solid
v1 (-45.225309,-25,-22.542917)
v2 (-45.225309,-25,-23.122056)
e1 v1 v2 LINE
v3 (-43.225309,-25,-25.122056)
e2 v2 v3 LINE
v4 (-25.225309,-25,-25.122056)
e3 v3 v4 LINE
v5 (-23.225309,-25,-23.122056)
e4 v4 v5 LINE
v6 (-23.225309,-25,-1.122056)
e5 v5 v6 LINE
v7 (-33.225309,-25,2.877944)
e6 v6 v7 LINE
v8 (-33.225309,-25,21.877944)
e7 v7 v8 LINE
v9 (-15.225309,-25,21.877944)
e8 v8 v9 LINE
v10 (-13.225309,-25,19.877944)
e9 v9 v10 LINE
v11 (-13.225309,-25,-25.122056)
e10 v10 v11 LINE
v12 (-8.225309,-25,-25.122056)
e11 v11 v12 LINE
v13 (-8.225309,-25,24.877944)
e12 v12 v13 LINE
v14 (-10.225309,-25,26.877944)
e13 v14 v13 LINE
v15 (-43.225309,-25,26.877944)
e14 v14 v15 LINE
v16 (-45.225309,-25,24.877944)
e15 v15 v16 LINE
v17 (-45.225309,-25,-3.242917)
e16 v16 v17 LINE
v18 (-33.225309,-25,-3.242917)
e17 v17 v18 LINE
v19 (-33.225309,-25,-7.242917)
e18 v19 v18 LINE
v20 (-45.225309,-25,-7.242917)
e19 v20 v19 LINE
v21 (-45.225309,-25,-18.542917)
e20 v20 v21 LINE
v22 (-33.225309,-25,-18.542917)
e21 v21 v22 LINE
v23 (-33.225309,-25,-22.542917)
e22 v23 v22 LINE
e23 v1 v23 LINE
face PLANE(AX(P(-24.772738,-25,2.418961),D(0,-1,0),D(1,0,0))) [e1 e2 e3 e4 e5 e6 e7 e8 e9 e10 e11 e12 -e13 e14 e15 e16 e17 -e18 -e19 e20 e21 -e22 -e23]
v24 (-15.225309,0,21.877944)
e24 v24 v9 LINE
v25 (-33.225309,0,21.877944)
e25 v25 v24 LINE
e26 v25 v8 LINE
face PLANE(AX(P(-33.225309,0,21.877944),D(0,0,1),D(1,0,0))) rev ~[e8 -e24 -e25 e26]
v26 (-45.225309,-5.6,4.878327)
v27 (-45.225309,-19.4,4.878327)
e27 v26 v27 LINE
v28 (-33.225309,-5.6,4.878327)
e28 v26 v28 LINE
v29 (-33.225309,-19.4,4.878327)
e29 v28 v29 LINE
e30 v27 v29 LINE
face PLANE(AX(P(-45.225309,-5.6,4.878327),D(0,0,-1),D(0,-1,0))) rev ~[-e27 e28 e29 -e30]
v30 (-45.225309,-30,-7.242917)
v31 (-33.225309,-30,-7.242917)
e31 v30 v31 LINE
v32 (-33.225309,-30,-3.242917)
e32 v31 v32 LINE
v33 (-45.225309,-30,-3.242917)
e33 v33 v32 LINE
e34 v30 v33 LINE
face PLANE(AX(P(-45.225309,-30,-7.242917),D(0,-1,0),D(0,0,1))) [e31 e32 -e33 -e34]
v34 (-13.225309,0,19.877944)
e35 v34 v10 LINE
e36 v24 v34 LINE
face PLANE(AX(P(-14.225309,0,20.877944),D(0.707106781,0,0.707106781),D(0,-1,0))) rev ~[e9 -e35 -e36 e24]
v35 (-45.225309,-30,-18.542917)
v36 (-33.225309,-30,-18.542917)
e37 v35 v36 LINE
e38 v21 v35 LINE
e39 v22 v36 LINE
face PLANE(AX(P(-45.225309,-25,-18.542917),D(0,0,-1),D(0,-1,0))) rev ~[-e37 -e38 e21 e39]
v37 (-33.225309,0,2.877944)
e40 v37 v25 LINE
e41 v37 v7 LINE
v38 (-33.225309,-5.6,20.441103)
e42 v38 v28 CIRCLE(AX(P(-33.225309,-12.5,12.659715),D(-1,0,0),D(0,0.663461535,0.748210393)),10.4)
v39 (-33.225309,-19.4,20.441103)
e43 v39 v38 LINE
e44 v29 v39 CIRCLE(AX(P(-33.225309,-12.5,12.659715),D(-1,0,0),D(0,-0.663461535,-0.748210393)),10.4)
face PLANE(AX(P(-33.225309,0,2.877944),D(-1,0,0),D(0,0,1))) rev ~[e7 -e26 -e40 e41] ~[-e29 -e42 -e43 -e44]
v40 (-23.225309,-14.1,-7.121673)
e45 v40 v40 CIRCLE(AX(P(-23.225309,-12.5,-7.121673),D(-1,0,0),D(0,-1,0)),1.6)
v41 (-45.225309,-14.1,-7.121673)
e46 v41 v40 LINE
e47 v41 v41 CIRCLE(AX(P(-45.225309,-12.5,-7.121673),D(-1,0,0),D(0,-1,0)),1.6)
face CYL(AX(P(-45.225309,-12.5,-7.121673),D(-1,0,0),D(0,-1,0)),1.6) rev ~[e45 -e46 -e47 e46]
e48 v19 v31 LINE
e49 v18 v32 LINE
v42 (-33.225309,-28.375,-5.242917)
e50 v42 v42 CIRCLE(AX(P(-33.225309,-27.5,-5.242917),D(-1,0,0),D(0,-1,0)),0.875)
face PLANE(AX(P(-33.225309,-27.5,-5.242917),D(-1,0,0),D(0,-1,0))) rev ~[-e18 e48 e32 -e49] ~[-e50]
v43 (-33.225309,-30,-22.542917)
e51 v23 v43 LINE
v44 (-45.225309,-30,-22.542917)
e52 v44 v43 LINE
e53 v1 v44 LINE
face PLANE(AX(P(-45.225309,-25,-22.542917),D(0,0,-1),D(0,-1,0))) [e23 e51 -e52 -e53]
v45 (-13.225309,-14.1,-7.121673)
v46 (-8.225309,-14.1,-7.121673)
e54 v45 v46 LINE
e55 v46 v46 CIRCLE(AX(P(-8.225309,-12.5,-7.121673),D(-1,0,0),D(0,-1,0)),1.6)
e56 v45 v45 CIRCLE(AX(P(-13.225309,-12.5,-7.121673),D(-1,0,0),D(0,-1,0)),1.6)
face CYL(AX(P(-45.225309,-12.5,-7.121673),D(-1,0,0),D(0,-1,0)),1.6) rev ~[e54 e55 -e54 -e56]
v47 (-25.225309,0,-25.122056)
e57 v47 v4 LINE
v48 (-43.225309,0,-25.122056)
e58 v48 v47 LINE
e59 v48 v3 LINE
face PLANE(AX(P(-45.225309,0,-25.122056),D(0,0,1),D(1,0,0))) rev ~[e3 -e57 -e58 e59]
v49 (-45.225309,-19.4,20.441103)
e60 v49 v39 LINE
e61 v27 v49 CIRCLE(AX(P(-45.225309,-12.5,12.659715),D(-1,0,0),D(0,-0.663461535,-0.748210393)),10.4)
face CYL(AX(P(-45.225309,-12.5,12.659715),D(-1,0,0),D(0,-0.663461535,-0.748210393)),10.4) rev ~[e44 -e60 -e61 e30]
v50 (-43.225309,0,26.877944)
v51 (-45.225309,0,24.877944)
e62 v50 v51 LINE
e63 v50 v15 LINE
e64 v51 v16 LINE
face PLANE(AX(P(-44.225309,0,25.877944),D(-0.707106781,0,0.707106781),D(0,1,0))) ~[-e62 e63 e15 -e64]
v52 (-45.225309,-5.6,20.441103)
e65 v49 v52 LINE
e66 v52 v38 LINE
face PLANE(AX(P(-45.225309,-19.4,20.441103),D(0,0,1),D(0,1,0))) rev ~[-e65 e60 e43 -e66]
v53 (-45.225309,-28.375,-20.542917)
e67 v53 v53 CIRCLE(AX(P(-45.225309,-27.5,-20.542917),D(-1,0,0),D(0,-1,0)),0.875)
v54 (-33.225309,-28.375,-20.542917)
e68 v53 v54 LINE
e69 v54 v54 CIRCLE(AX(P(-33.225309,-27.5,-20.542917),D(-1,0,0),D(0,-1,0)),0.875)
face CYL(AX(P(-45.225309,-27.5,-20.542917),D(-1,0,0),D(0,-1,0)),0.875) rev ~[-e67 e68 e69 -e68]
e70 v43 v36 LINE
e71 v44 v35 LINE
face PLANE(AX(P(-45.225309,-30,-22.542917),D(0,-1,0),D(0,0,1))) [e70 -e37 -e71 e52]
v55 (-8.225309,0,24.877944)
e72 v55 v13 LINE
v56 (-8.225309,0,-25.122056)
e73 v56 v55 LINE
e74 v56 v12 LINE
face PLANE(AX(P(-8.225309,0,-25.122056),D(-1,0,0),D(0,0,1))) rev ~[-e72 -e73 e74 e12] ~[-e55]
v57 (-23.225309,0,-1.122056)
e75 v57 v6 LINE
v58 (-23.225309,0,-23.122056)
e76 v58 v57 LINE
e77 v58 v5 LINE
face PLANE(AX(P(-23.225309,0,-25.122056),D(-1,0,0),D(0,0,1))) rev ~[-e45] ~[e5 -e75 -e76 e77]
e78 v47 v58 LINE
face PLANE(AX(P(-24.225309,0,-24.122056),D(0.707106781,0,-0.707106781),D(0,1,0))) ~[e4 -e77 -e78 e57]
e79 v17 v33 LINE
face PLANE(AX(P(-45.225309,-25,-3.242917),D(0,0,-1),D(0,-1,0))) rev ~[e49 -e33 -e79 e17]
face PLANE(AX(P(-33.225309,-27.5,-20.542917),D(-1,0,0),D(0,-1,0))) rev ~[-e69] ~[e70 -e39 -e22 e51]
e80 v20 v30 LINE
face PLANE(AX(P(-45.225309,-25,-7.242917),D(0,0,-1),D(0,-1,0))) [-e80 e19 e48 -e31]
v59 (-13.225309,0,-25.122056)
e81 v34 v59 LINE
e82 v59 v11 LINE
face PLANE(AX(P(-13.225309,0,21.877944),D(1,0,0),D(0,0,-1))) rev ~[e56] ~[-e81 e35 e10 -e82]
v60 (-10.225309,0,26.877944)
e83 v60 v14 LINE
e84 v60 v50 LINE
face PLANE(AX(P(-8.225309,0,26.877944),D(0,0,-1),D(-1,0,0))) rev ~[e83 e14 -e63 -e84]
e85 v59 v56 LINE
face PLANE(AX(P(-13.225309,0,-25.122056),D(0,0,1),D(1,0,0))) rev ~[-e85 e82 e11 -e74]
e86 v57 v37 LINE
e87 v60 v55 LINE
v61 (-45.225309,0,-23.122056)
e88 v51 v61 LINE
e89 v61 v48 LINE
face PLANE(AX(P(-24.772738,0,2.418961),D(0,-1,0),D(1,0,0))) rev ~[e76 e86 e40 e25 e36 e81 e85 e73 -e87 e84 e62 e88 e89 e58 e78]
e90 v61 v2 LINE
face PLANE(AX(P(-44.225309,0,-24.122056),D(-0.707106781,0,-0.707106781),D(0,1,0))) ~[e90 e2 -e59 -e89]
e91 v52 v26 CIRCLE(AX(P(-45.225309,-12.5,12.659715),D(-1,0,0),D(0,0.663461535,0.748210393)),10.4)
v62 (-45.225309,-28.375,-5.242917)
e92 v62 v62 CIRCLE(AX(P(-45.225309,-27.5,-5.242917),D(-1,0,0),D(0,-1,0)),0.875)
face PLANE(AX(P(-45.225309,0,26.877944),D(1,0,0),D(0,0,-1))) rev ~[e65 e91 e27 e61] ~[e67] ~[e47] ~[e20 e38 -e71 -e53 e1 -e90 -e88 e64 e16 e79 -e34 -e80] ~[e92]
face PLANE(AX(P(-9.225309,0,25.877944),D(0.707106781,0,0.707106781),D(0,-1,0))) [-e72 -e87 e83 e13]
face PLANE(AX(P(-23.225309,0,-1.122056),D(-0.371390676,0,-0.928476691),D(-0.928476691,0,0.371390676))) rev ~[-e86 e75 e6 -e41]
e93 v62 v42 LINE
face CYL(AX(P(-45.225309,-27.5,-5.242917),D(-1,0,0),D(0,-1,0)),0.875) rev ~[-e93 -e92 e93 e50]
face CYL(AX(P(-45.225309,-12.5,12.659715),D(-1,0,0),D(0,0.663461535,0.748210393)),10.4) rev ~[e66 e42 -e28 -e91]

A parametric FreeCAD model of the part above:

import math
import FreeCAD as App
import Part
import Sketcher

V = App.Vector


def edges_at(feature, points):
    """Names of the edges that pass closest to the given points."""
    edges = feature.Shape.Edges
    near = lambda p: min(range(len(edges)), key=lambda i: edges[i].distToShape(Part.Vertex(*p))[0])
    return sorted({f"Edge{near(p) + 1}" for p in points})


def add_polygon(sketch, points):
    """Adds a closed chain of lines whose ends are joined by coincident constraints."""
    first, n = sketch.GeometryCount, len(points)
    for a, b in zip(points, points[1:] + points[:1]):
        sketch.addGeometry(Part.LineSegment(App.Vector(*a, 0), App.Vector(*b, 0)), False)
    for i in range(n):
        sketch.addConstraint(Sketcher.Constraint("Coincident", first + i, 2, first + (i + 1) % n, 1))

doc = App.newDocument("Part")
body = doc.addObject("PartDesign::Body", "Body")

# Sketch on XZ plane
sketch1 = body.newObject("Sketcher::SketchObject", "Sketch")
sketch1.AttachmentSupport = (doc.getObject("XZ_Plane"), [""])
sketch1.MapMode = "FlatFace"
add_polygon(sketch1, [(-8, 27), (-45, 27), (-45, -25), (-23, -25), (-23, -1), (-33, 3), (-33, 22), (-13, 22), (-13, -25), (-8, -25)])  # lines 0-9
sketch1.addConstraint([
    Sketcher.Constraint("Horizontal", 0),
    Sketcher.Constraint("Vertical", 1),
    Sketcher.Constraint("Horizontal", 2),
    Sketcher.Constraint("Vertical", 3),
    Sketcher.Constraint("Vertical", 5),
    Sketcher.Constraint("Horizontal", 6),
    Sketcher.Constraint("Vertical", 7),
    Sketcher.Constraint("Horizontal", 8),
    Sketcher.Constraint("Vertical", 9),
    Sketcher.Constraint("Horizontal", 2, 2, 7, 2),
    Sketcher.Constraint("DistanceX", 0, 2, 0, 1, 37.0),
    Sketcher.Constraint("DistanceX", 2, 1, 2, 2, 22.0),
    Sketcher.Constraint("DistanceX", 6, 1, 6, 2, 20.0),
    Sketcher.Constraint("DistanceX", 8, 1, 8, 2, 5.0),
    Sketcher.Constraint("DistanceY", 1, 2, 1, 1, 52.0),
    Sketcher.Constraint("DistanceY", 3, 1, 3, 2, 24.0),
    Sketcher.Constraint("DistanceY", 5, 1, 5, 2, 19.0),
    Sketcher.Constraint("DistanceY", 7, 2, 7, 1, 47.0),
    Sketcher.Constraint("DistanceX", 0, 2, -1, 1, 45.225309),
    Sketcher.Constraint("DistanceY", -1, 1, 0, 2, 26.877944),
])
pad1 = body.newObject("PartDesign::Pad", "Pad")
pad1.Profile = sketch1
pad1.Length = 25

# Sketch on YZ plane
sketch2 = body.newObject("Sketcher::SketchObject", "Sketch001")
sketch2.AttachmentSupport = (doc.getObject("YZ_Plane"), [""])
sketch2.MapMode = "FlatFace"
sketch2.AttachmentOffset = App.Placement(V(0, 0, -45.225309), App.Rotation())
sketch2.addGeometry([
    Part.LineSegment(V(-19, 20, 0), V(-6, 20, 0)),
    Part.ArcOfCircle(Part.Circle(V(-12, 13, 0), V(0, 0, 1), 10), math.radians(-48), math.radians(48)),
    Part.LineSegment(V(-6, 5, 0), V(-19, 5, 0)),
    Part.ArcOfCircle(Part.Circle(V(-13, 13, 0), V(0, 0, 1), 10), math.radians(132), math.radians(228)),
], False)
sketch2.addConstraint([
    Sketcher.Constraint("Coincident", 0, 2, 1, 2),
    Sketcher.Constraint("Coincident", 1, 1, 2, 1),
    Sketcher.Constraint("Coincident", 2, 2, 3, 2),
    Sketcher.Constraint("Coincident", 3, 1, 0, 1),
    Sketcher.Constraint("Horizontal", 0),
    Sketcher.Constraint("Horizontal", 2),
    Sketcher.Constraint("Coincident", 3, 3, 1, 3),
    Sketcher.Constraint("Equal", 1, 3),
    Sketcher.Constraint("Vertical", 0, 2, 1, 1),
    Sketcher.Constraint("Radius", 1, 10.4),
    Sketcher.Constraint("DistanceX", 0, 1, 0, 2, 13.8),
    Sketcher.Constraint("DistanceX", 1, 3, -1, 1, 12.5),
    Sketcher.Constraint("DistanceY", -1, 1, 1, 3, 12.659715),
])
pocket1 = body.newObject("PartDesign::Pocket", "Pocket")
pocket1.Profile = sketch2
pocket1.Length = 25
pocket1.Reversed = True

# Sketch on YZ plane
sketch3 = body.newObject("Sketcher::SketchObject", "Sketch002")
sketch3.AttachmentSupport = (doc.getObject("YZ_Plane"), [""])
sketch3.MapMode = "FlatFace"
sketch3.AttachmentOffset = App.Placement(V(0, 0, -45.225309), App.Rotation())
sketch3.addGeometry(Part.Circle(V(-12.5, -7.1, 0), V(0, 0, 1), 1.6), False)
sketch3.addConstraint([
    Sketcher.Constraint("Diameter", 0, 3.2),
    Sketcher.Constraint("DistanceX", 0, 3, -1, 1, 12.5),
    Sketcher.Constraint("DistanceY", 0, 3, -1, 1, 7.121673),
])
pocket2 = body.newObject("PartDesign::Pocket", "Pocket001")
pocket2.Profile = sketch3
pocket2.Type = "ThroughAll"
pocket2.Reversed = True
doc.recompute()

chamfer = body.newObject("PartDesign::Chamfer", "Chamfer")
chamfer.Base = (pocket2, edges_at(pocket2, [
    (-45.225, -12.5, -25.122),
    (-23.225, -12.5, -25.122),
    (-13.225, -12.5, 21.878),
    (-8.225, -12.5, 26.878),
    (-45.225, -12.5, 26.878),
]))
chamfer.Size = 2

# Sketch on YZ plane
sketch4 = body.newObject("Sketcher::SketchObject", "Sketch003")
sketch4.AttachmentSupport = (doc.getObject("YZ_Plane"), [""])
sketch4.MapMode = "FlatFace"
sketch4.AttachmentOffset = App.Placement(V(0, 0, -45.225309), App.Rotation())
add_polygon(sketch4, [(-25, -18.5), (-25, -22.5), (-30, -22.5), (-30, -18.5)])  # lines 0-3
sketch4.addGeometry(Part.Circle(V(-27.5, -20.5, 0), V(0, 0, 1), 0.9), False)  # 4
add_polygon(sketch4, [(-25, -3.2), (-25, -7.2), (-30, -7.2), (-30, -3.2)])  # lines 5-8
sketch4.addGeometry(Part.Circle(V(-27.5, -5.2, 0), V(0, 0, 1), 0.9), False)  # 9
sketch4.addConstraint([
    Sketcher.Constraint("Vertical", 0),
    Sketcher.Constraint("Horizontal", 1),
    Sketcher.Constraint("Vertical", 2),
    Sketcher.Constraint("Horizontal", 3),
    Sketcher.Constraint("Vertical", 5),
    Sketcher.Constraint("Horizontal", 6),
    Sketcher.Constraint("Vertical", 7),
    Sketcher.Constraint("Horizontal", 8),
    Sketcher.Constraint("Equal", 4, 9),
    Sketcher.Constraint("Vertical", 4, 3, 9, 3),
    Sketcher.Constraint("Vertical", 3, 2, 5, 2),
    Sketcher.Constraint("Vertical", 2, 2, 6, 2),
    Sketcher.Constraint("Equal", 2, 5),
    Sketcher.Constraint("Diameter", 4, 1.75),
    Sketcher.Constraint("DistanceX", 1, 2, 1, 1, 5.0),
    Sketcher.Constraint("DistanceY", 0, 2, 0, 1, 4.0),
    Sketcher.Constraint("DistanceX", 0, 2, -1, 1, 25.0),
    Sketcher.Constraint("DistanceY", 0, 2, 4, 3, 2.0),
    Sketcher.Constraint("DistanceY", 5, 2, 9, 3, 2.0),
    Sketcher.Constraint("DistanceX", 4, 3, -1, 1, 27.5),
    Sketcher.Constraint("DistanceY", 4, 3, 9, 3, 15.3),
    Sketcher.Constraint("DistanceY", 4, 3, -1, 1, 20.542917),
])
pad2 = body.newObject("PartDesign::Pad", "Pad001")
pad2.Profile = sketch4
pad2.Length = 12

doc.recompute()
